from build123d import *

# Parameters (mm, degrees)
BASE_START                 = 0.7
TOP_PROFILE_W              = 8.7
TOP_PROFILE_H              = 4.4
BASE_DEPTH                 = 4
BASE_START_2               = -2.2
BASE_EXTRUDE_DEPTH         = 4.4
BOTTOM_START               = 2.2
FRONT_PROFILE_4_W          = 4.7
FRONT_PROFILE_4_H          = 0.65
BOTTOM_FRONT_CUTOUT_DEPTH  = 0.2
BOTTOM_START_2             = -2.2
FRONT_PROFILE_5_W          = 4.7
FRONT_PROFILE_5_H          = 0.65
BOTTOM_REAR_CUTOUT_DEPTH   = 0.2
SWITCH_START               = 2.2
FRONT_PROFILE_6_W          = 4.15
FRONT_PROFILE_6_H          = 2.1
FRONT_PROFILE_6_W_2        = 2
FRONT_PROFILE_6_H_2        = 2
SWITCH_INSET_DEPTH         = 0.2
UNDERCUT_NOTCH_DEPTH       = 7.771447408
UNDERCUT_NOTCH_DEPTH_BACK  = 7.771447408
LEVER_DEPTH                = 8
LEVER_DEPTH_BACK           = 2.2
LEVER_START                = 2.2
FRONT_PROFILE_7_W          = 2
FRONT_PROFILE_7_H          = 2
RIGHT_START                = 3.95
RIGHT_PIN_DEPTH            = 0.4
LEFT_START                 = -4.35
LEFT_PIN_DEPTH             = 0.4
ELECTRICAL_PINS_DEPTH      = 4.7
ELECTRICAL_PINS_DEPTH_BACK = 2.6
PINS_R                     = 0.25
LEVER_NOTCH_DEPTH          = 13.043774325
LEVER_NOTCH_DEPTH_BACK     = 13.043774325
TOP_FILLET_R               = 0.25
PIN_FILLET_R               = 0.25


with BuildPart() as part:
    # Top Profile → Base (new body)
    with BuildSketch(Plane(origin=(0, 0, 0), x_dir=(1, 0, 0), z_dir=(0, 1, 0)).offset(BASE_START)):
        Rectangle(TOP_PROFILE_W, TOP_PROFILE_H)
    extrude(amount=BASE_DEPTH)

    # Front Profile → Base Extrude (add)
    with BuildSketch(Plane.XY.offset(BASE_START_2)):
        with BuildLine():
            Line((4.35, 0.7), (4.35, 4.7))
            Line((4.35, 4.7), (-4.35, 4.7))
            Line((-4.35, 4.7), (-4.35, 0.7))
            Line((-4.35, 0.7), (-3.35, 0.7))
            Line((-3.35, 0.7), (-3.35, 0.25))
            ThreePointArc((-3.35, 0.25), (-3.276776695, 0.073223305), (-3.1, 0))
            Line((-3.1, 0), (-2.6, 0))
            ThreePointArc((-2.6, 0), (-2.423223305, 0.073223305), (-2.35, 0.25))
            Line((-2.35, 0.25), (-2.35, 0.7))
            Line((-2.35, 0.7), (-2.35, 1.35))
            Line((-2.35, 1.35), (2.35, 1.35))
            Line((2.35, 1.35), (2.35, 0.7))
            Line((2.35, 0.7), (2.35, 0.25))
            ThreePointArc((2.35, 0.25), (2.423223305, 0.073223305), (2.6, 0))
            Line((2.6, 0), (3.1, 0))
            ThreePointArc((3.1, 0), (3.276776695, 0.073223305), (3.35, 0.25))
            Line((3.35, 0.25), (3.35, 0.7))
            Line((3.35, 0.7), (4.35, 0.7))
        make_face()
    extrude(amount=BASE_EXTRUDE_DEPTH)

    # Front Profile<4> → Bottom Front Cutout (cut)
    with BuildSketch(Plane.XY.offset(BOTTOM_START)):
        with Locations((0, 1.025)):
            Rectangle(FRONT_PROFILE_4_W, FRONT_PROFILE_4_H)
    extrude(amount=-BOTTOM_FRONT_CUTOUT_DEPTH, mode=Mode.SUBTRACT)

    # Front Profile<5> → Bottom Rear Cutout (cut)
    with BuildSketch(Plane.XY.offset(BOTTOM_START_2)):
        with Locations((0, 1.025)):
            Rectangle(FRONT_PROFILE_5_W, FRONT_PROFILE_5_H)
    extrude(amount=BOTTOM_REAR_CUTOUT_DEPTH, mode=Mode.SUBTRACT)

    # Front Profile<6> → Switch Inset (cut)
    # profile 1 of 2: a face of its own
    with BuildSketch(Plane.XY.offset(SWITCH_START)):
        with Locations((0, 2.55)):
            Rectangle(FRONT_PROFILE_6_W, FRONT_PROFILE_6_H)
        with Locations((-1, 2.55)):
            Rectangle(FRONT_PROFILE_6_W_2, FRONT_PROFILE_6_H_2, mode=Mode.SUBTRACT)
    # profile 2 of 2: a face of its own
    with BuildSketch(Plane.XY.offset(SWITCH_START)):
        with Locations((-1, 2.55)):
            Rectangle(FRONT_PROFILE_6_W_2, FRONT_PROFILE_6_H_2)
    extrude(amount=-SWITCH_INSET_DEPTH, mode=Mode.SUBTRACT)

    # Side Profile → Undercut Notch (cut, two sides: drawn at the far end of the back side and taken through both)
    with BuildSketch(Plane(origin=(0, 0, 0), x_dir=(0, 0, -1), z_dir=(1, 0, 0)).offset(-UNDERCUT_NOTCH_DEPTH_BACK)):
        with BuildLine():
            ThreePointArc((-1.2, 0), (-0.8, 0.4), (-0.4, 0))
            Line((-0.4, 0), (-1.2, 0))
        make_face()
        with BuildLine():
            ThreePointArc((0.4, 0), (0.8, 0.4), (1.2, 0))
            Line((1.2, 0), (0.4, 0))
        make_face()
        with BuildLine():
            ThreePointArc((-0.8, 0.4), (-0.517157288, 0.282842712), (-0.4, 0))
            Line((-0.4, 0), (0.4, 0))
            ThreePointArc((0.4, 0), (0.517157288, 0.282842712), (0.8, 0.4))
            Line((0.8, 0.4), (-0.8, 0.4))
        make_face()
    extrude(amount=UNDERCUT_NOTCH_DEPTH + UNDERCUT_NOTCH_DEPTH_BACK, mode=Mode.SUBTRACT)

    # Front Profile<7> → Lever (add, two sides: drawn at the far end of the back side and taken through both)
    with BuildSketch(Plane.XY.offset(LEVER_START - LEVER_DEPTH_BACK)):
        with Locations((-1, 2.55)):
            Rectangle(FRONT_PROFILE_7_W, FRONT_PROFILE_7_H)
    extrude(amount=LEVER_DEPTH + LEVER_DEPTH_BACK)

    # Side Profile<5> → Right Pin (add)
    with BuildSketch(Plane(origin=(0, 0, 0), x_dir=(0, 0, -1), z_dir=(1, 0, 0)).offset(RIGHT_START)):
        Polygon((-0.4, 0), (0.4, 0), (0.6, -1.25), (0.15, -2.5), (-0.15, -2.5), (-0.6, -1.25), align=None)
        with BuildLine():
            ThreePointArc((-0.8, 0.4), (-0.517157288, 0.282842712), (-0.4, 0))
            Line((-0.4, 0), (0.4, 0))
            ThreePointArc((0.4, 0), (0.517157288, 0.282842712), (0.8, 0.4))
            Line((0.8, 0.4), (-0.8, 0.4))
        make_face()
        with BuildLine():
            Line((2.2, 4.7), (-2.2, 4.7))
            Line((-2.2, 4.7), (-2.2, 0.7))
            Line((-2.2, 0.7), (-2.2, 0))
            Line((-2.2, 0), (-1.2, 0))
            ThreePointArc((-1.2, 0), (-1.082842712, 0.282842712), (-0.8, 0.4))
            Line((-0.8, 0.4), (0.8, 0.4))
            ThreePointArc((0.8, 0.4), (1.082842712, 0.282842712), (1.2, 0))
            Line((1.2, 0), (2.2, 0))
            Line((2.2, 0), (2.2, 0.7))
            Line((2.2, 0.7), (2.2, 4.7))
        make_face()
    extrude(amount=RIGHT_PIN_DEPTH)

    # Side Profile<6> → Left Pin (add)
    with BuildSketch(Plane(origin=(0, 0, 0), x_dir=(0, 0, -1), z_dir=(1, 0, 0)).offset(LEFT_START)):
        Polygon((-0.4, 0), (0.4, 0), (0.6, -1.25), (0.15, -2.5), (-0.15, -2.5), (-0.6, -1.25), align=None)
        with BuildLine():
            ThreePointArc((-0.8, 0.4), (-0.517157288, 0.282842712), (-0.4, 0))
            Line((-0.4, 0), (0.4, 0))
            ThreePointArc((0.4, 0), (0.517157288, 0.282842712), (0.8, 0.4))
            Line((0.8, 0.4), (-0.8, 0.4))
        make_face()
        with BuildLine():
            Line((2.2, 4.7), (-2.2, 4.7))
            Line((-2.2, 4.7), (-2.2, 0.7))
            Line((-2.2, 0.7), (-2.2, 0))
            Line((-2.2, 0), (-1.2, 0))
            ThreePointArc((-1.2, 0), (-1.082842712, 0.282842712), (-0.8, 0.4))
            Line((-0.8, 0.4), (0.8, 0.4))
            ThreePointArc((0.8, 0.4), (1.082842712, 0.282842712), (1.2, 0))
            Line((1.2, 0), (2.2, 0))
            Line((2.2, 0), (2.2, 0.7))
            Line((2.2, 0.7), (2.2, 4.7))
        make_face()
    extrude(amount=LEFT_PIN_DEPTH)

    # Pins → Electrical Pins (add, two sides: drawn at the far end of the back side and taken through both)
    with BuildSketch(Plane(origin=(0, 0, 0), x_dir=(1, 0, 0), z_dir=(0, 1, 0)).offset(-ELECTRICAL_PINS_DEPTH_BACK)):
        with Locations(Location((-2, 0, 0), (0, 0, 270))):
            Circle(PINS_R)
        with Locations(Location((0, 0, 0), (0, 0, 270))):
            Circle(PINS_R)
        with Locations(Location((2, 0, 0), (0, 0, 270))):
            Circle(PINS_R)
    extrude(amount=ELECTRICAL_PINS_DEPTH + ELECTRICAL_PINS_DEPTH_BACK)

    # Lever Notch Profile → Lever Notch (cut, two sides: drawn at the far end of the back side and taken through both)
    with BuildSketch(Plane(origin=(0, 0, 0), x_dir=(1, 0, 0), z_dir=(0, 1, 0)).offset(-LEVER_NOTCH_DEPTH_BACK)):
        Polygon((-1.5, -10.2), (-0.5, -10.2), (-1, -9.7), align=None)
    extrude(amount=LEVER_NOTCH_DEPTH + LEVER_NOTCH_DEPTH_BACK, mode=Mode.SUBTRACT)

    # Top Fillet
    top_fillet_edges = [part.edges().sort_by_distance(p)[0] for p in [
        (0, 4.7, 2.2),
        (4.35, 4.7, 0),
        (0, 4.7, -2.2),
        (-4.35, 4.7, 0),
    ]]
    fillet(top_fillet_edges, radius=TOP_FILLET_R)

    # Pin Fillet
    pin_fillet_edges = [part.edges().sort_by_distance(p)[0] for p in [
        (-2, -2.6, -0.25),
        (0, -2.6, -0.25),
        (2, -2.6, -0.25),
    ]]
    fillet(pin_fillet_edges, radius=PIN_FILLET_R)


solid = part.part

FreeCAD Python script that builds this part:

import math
import FreeCAD as App
import Part
import Sketcher
from FreeCAD import Vector


def edges_at(feature, points):
    """Names of the edges that pass closest to the given points."""
    edges = feature.Shape.Edges
    near = lambda p: min(range(len(edges)), key=lambda i: edges[i].distToShape(Part.Vertex(*p))[0])
    return sorted({f"Edge{near(p) + 1}" for p in points})

doc = App.newDocument("Part")
body = doc.addObject("PartDesign::Body", "Body")

sketch1 = doc.addObject("Sketcher::SketchObject", "Sketch")
body.addObject(sketch1)
sketch1.AttachmentSupport = (doc.XZ_Plane, [""])
sketch1.MapMode = "FlatFace"
sketch1.AttachmentOffset = App.Placement(Vector(0, 0, -0.7), App.Rotation())
sketch1.addGeometry([
    Part.LineSegment(Vector(-4.3, -2.2, 0), Vector(-4.3, 2.2, 0)),
    Part.LineSegment(Vector(-4.3, 2.2, 0), Vector(4.3, 2.2, 0)),
    Part.LineSegment(Vector(4.3, 2.2, 0), Vector(4.3, -2.2, 0)),
    Part.LineSegment(Vector(4.3, -2.2, 0), Vector(-4.3, -2.2, 0)),
], False)
sketch1.addConstraint([
    Sketcher.Constraint("Coincident", 0, 2, 1, 1),
    Sketcher.Constraint("Coincident", 1, 2, 2, 1),
    Sketcher.Constraint("Coincident", 2, 2, 3, 1),
    Sketcher.Constraint("Coincident", 3, 2, 0, 1),
    Sketcher.Constraint("Vertical", 0),
    Sketcher.Constraint("Horizontal", 1),
    Sketcher.Constraint("Vertical", 2),
    Sketcher.Constraint("Horizontal", 3),
    Sketcher.Constraint("Symmetric", 0, 2, 2, 2, -1, 1),
    Sketcher.Constraint("DistanceX", 1, 1, 1, 2, 8.7),
    Sketcher.Constraint("DistanceY", 0, 1, 0, 2, 4.4),
])
pad1 = doc.addObject("PartDesign::Pad", "Pad")
body.addObject(pad1)
pad1.Profile = sketch1
pad1.Length = 4
pad1.Reversed = True

sketch2 = doc.addObject("Sketcher::SketchObject", "Sketch001")
body.addObject(sketch2)
sketch2.AttachmentSupport = (doc.XY_Plane, [""])
sketch2.MapMode = "FlatFace"
sketch2.AttachmentOffset = App.Placement(Vector(0, 0, -2.2), App.Rotation())
sketch2.addGeometry([
    Part.LineSegment(Vector(4.35, 0.7, 0), Vector(4.35, 4.7, 0)),
    Part.LineSegment(Vector(4.35, 4.7, 0), Vector(-4.35, 4.7, 0)),
    Part.LineSegment(Vector(-4.35, 4.7, 0), Vector(-4.35, 0.7, 0)),
    Part.LineSegment(Vector(-4.35, 0.7, 0), Vector(-3.35, 0.7, 0)),
    Part.LineSegment(Vector(-3.35, 0.7, 0), Vector(-3.35, 0.25, 0)),
    Part.ArcOfCircle(Part.Circle(Vector(-3.1, 0.25, 0), Vector(0, 0, 1), 0.25), math.radians(-180), math.radians(-90)),
    Part.LineSegment(Vector(-3.1, 0, 0), Vector(-2.6, 0, 0)),
    Part.ArcOfCircle(Part.Circle(Vector(-2.6, 0.25, 0), Vector(0, 0, 1), 0.25), math.radians(-90), math.radians(0)),
    Part.LineSegment(Vector(-2.35, 0.25, 0), Vector(-2.35, 1.35, 0)),
    Part.LineSegment(Vector(-2.35, 1.35, 0), Vector(2.35, 1.35, 0)),
    Part.LineSegment(Vector(2.35, 1.35, 0), Vector(2.35, 0.25, 0)),
    Part.ArcOfCircle(Part.Circle(Vector(2.6, 0.25, 0), Vector(0, 0, 1), 0.25), math.radians(-180), math.radians(-90)),
    Part.LineSegment(Vector(2.6, 0, 0), Vector(3.1, 0, 0)),
    Part.ArcOfCircle(Part.Circle(Vector(3.1, 0.25, 0), Vector(0, 0, 1), 0.25), math.radians(-90), math.radians(0)),
    Part.LineSegment(Vector(3.35, 0.25, 0), Vector(3.35, 0.7, 0)),
    Part.LineSegment(Vector(3.35, 0.7, 0), Vector(4.35, 0.7, 0)),
], False)
sketch2.addConstraint([
    Sketcher.Constraint("Coincident", 0, 2, 1, 1),
    Sketcher.Constraint("Coincident", 1, 2, 2, 1),
    Sketcher.Constraint("Coincident", 2, 2, 3, 1),
    Sketcher.Constraint("Coincident", 3, 2, 4, 1),
    Sketcher.Constraint("Tangent", 4, 2, 5, 1),
    Sketcher.Constraint("Tangent", 5, 2, 6, 1),
    Sketcher.Constraint("Tangent", 6, 2, 7, 1),
    Sketcher.Constraint("Tangent", 7, 2, 8, 1),
    Sketcher.Constraint("Coincident", 8, 2, 9, 1),
    Sketcher.Constraint("Coincident", 9, 2, 10, 1),
    Sketcher.Constraint("Tangent", 10, 2, 11, 1),
    Sketcher.Constraint("Tangent", 11, 2, 12, 1),
    Sketcher.Constraint("Tangent", 12, 2, 13, 1),
    Sketcher.Constraint("Tangent", 13, 2, 14, 1),
    Sketcher.Constraint("Coincident", 14, 2, 15, 1),
    Sketcher.Constraint("Coincident", 15, 2, 0, 1),
    Sketcher.Constraint("Vertical", 0),
    Sketcher.Constraint("Horizontal", 1),
    Sketcher.Constraint("Vertical", 2),
    Sketcher.Constraint("Horizontal", 3),
    Sketcher.Constraint("Vertical", 4),
    Sketcher.Constraint("Horizontal", 6),
    Sketcher.Constraint("Vertical", 8),
    Sketcher.Constraint("Horizontal", 9),
    Sketcher.Constraint("Vertical", 10),
    Sketcher.Constraint("Horizontal", 12),
    Sketcher.Constraint("Vertical", 14),
    Sketcher.Constraint("Horizontal", 15),
    Sketcher.Constraint("Equal", 5, 7),
    Sketcher.Constraint("Equal", 7, 11),
    Sketcher.Constraint("Equal", 11, 13),
    Sketcher.Constraint("Symmetric", 6, 2, 11, 2, -1, 1),
    Sketcher.Constraint("Symmetric", 5, 3, 13, 3, -2),
    Sketcher.Constraint("Symmetric", 2, 2, 15, 2, -2),
    Sketcher.Constraint("DistanceX", 3, 1, 3, 2, 1.0),
    Sketcher.Constraint("DistanceY", 0, 1, 0, 2, 4.0),
    Sketcher.Constraint("Radius", 5, 0.25),
    Sketcher.Constraint("DistanceX", 1, 2, 1, 1, 8.7),
    Sketcher.Constraint("DistanceX", 6, 1, 6, 2, 0.5),
    Sketcher.Constraint("DistanceY", 8, 1, 8, 2, 1.1),
    Sketcher.Constraint("DistanceY", 4, 2, 4, 1, 0.45),
])
pad2 = doc.addObject("PartDesign::Pad", "Pad001")
body.addObject(pad2)
pad2.Profile = sketch2
pad2.Length = 4.4

sketch3 = doc.addObject("Sketcher::SketchObject", "Sketch002")
body.addObject(sketch3)
sketch3.AttachmentSupport = (doc.XY_Plane, [""])
sketch3.MapMode = "FlatFace"
sketch3.AttachmentOffset = App.Placement(Vector(0, 0, 2.2), App.Rotation())
sketch3.addGeometry([
    Part.LineSegment(Vector(-2.4, 1.4, 0), Vector(-2.4, 0.7, 0)),
    Part.LineSegment(Vector(-2.4, 0.7, 0), Vector(2.4, 0.7, 0)),
    Part.LineSegment(Vector(2.4, 0.7, 0), Vector(2.4, 1.4, 0)),
    Part.LineSegment(Vector(2.4, 1.4, 0), Vector(-2.4, 1.4, 0)),
], False)
sketch3.addConstraint([
    Sketcher.Constraint("Coincident", 0, 2, 1, 1),
    Sketcher.Constraint("Coincident", 1, 2, 2, 1),
    Sketcher.Constraint("Coincident", 2, 2, 3, 1),
    Sketcher.Constraint("Coincident", 3, 2, 0, 1),
    Sketcher.Constraint("Vertical", 0),
    Sketcher.Constraint("Horizontal", 1),
    Sketcher.Constraint("Vertical", 2),
    Sketcher.Constraint("Horizontal", 3),
    Sketcher.Constraint("DistanceX", 1, 1, 1, 2, 4.7),
    Sketcher.Constraint("DistanceY", 0, 2, 0, 1, 0.65),
    Sketcher.Constraint("DistanceY", -1, 1, 0, 2, 0.7),
    Sketcher.Constraint("DistanceX", 0, 2, -1, 1, 2.35),
])
pocket1 = doc.addObject("PartDesign::Pocket", "Pocket")
body.addObject(pocket1)
pocket1.Profile = sketch3
pocket1.Length = 0.2

sketch4 = doc.addObject("Sketcher::SketchObject", "Sketch003")
body.addObject(sketch4)
sketch4.AttachmentSupport = (doc.XY_Plane, [""])
sketch4.MapMode = "FlatFace"
sketch4.AttachmentOffset = App.Placement(Vector(0, 0, -2.2), App.Rotation())
sketch4.addGeometry([
    Part.LineSegment(Vector(-2.4, 1.4, 0), Vector(-2.4, 0.7, 0)),
    Part.LineSegment(Vector(-2.4, 0.7, 0), Vector(2.4, 0.7, 0)),
    Part.LineSegment(Vector(2.4, 0.7, 0), Vector(2.4, 1.4, 0)),
    Part.LineSegment(Vector(2.4, 1.4, 0), Vector(-2.4, 1.4, 0)),
], False)
sketch4.addConstraint([
    Sketcher.Constraint("Coincident", 0, 2, 1, 1),
    Sketcher.Constraint("Coincident", 1, 2, 2, 1),
    Sketcher.Constraint("Coincident", 2, 2, 3, 1),
    Sketcher.Constraint("Coincident", 3, 2, 0, 1),
    Sketcher.Constraint("Vertical", 0),
    Sketcher.Constraint("Horizontal", 1),
    Sketcher.Constraint("Vertical", 2),
    Sketcher.Constraint("Horizontal", 3),
    Sketcher.Constraint("DistanceX", 1, 1, 1, 2, 4.7),
    Sketcher.Constraint("DistanceY", 0, 2, 0, 1, 0.65),
    Sketcher.Constraint("DistanceY", -1, 1, 0, 2, 0.7),
    Sketcher.Constraint("DistanceX", 0, 2, -1, 1, 2.35),
])
pocket2 = doc.addObject("PartDesign::Pocket", "Pocket001")
body.addObject(pocket2)
pocket2.Profile = sketch4
pocket2.Length = 0.2
pocket2.Reversed = True

sketch5 = doc.addObject("Sketcher::SketchObject", "Sketch004")
body.addObject(sketch5)
sketch5.AttachmentSupport = (doc.XY_Plane, [""])
sketch5.MapMode = "FlatFace"
sketch5.AttachmentOffset = App.Placement(Vector(0, 0, 2.2), App.Rotation())
sketch5.addGeometry([
    Part.LineSegment(Vector(-2.1, 3.6, 0), Vector(-2.1, 1.5, 0)),
    Part.LineSegment(Vector(-2.1, 1.5, 0), Vector(2.1, 1.5, 0)),
    Part.LineSegment(Vector(2.1, 1.5, 0), Vector(2.1, 3.6, 0)),
    Part.LineSegment(Vector(2.1, 3.6, 0), Vector(-2.1, 3.6, 0)),
], False)
sketch5.addConstraint([
    Sketcher.Constraint("Coincident", 0, 2, 1, 1),
    Sketcher.Constraint("Coincident", 1, 2, 2, 1),
    Sketcher.Constraint("Coincident", 2, 2, 3, 1),
    Sketcher.Constraint("Coincident", 3, 2, 0, 1),
    Sketcher.Constraint("Vertical", 0),
    Sketcher.Constraint("Horizontal", 1),
    Sketcher.Constraint("Vertical", 2),
    Sketcher.Constraint("Horizontal", 3),
    Sketcher.Constraint("DistanceY", 0, 2, 0, 1, 2.1),
    Sketcher.Constraint("DistanceX", 1, 1, 1, 2, 4.15),
    Sketcher.Constraint("DistanceY", -1, 1, 0, 2, 1.5),
    Sketcher.Constraint("DistanceX", 0, 2, -1, 1, 2.075),
])
pocket3 = doc.addObject("PartDesign::Pocket", "Pocket002")
body.addObject(pocket3)
pocket3.Profile = sketch5
pocket3.Length = 0.2

sketch6 = doc.addObject("Sketcher::SketchObject", "Sketch005")
body.addObject(sketch6)
sketch6.AttachmentSupport = (doc.YZ_Plane, [""])
sketch6.MapMode = "FlatFace"
sketch6.addGeometry([
    Part.ArcOfCircle(Part.Circle(Vector(0, 0.8, 0), Vector(0, 0, 1), 0.4), math.radians(0), math.radians(90)),
    Part.LineSegment(Vector(0, 1.2, 0), Vector(0, -1.2, 0)),
    Part.ArcOfCircle(Part.Circle(Vector(0, -0.8, 0), Vector(0, 0, 1), 0.4), math.radians(-90), math.radians(0)),
    Part.LineSegment(Vector(0.4, -0.8, 0), Vector(0.4, 0.8, 0)),
], False)
sketch6.addConstraint([
    Sketcher.Constraint("Coincident", 0, 2, 1, 1),
    Sketcher.Constraint("Coincident", 1, 2, 2, 1),
    Sketcher.Constraint("Tangent", 2, 2, 3, 1),
    Sketcher.Constraint("Tangent", 3, 2, 0, 1),
    Sketcher.Constraint("Vertical", 1),
    Sketcher.Constraint("Vertical", 3),
    Sketcher.Constraint("Equal", 0, 2),
    Sketcher.Constraint("Symmetric", 0, 3, 2, 3, -1, 1),
    Sketcher.Constraint("PointOnObject", 0, 2, -2),
    Sketcher.Constraint("Radius", 0, 0.4),
    Sketcher.Constraint("DistanceY", 1, 2, 1, 1, 2.4),
])
pocket4 = doc.addObject("PartDesign::Pocket", "Pocket003")
body.addObject(pocket4)
pocket4.Profile = sketch6
pocket4.Type = "ThroughAll"
pocket4.Midplane = True

sketch7 = doc.addObject("Sketcher::SketchObject", "Sketch006")
body.addObject(sketch7)
sketch7.AttachmentSupport = (doc.XY_Plane, [""])
sketch7.MapMode = "FlatFace"
sketch7.AttachmentOffset = App.Placement(Vector(0, 0, 2.2), App.Rotation())
sketch7.addGeometry([
    Part.LineSegment(Vector(-2, 3.5, 0), Vector(-2, 1.6, 0)),
    Part.LineSegment(Vector(-2, 1.6, 0), Vector(0, 1.6, 0)),
    Part.LineSegment(Vector(0, 1.6, 0), Vector(0, 3.5, 0)),
    Part.LineSegment(Vector(0, 3.5, 0), Vector(-2, 3.5, 0)),
], False)
sketch7.addConstraint([
    Sketcher.Constraint("Coincident", 0, 2, 1, 1),
    Sketcher.Constraint("Coincident", 1, 2, 2, 1),
    Sketcher.Constraint("Coincident", 2, 2, 3, 1),
    Sketcher.Constraint("Coincident", 3, 2, 0, 1),
    Sketcher.Constraint("Vertical", 0),
    Sketcher.Constraint("Horizontal", 1),
    Sketcher.Constraint("Vertical", 2),
    Sketcher.Constraint("Horizontal", 3),
    Sketcher.Constraint("PointOnObject", 1, 2, -2),
    Sketcher.Constraint("Equal", 3, 0),
    Sketcher.Constraint("DistanceX", 1, 1, 1, 2, 2.0),
    Sketcher.Constraint("DistanceY", -1, 1, 0, 2, 1.55),
])
pad3 = doc.addObject("PartDesign::Pad", "Pad002")
body.addObject(pad3)
pad3.Profile = sketch7
pad3.Type = "TwoLengths"
pad3.Length = 8
pad3.Length2 = 2.2

sketch8 = doc.addObject("Sketcher::SketchObject", "Sketch007")
body.addObject(sketch8)
sketch8.AttachmentSupport = (doc.YZ_Plane, [""])
sketch8.MapMode = "FlatFace"
sketch8.AttachmentOffset = App.Placement(Vector(0, 0, 3.95), App.Rotation())
sketch8.addGeometry([
    Part.LineSegment(Vector(-1.25, -0.6, 0), Vector(0, -0.4, 0)),
    Part.ArcOfCircle(Part.Circle(Vector(0, -0.8, 0), Vector(0, 0, 1), 0.4), math.radians(0), math.radians(90)),
    Part.ArcOfCircle(Part.Circle(Vector(0, -0.8, 0), Vector(0, 0, 1), 0.4), math.radians(-90), math.radians(0)),
    Part.LineSegment(Vector(0, -1.2, 0), Vector(0, -2.2, 0)),
    Part.LineSegment(Vector(0, -2.2, 0), Vector(4.7, -2.2, 0)),
    Part.LineSegment(Vector(4.7, -2.2, 0), Vector(4.7, 2.2, 0)),
    Part.LineSegment(Vector(4.7, 2.2, 0), Vector(0, 2.2, 0)),
    Part.LineSegment(Vector(0, 2.2, 0), Vector(0, 1.2, 0)),
    Part.ArcOfCircle(Part.Circle(Vector(0, 0.8, 0), Vector(0, 0, 1), 0.4), math.radians(0), math.radians(90)),
    Part.ArcOfCircle(Part.Circle(Vector(0, 0.8, 0), Vector(0, 0, 1), 0.4), math.radians(-90), math.radians(0)),
    Part.LineSegment(Vector(0, 0.4, 0), Vector(-1.25, 0.6, 0)),
    Part.LineSegment(Vector(-1.25, 0.6, 0), Vector(-2.5, 0.15, 0)),
    Part.LineSegment(Vector(-2.5, 0.15, 0), Vector(-2.5, -0.15, 0)),
    Part.LineSegment(Vector(-2.5, -0.15, 0), Vector(-1.25, -0.6, 0)),
], False)
sketch8.addConstraint([
    Sketcher.Constraint("Coincident", 0, 2, 1, 2),
    Sketcher.Constraint("Tangent", 1, 1, 2, 2),
    Sketcher.Constraint("Coincident", 2, 1, 3, 1),
    Sketcher.Constraint("Coincident", 3, 2, 4, 1),
    Sketcher.Constraint("Coincident", 4, 2, 5, 1),
    Sketcher.Constraint("Coincident", 5, 2, 6, 1),
    Sketcher.Constraint("Coincident", 6, 2, 7, 1),
    Sketcher.Constraint("Coincident", 7, 2, 8, 2),
    Sketcher.Constraint("Tangent", 8, 1, 9, 2),
    Sketcher.Constraint("Coincident", 9, 1, 10, 1),
    Sketcher.Constraint("Coincident", 10, 2, 11, 1),
    Sketcher.Constraint("Coincident", 11, 2, 12, 1),
    Sketcher.Constraint("Coincident", 12, 2, 13, 1),
    Sketcher.Constraint("Coincident", 13, 2, 0, 1),
    Sketcher.Constraint("Vertical", 3),
    Sketcher.Constraint("Horizontal", 4),
    Sketcher.Constraint("Vertical", 5),
    Sketcher.Constraint("Horizontal", 6),
    Sketcher.Constraint("Vertical", 7),
    Sketcher.Constraint("Vertical", 12),
    Sketcher.Constraint("Equal", 1, 2),
    Sketcher.Constraint("Equal", 2, 8),
    Sketcher.Constraint("Equal", 8, 9),
    Sketcher.Constraint("Symmetric", 1, 3, 8, 3, -1, 1),
    Sketcher.Constraint("Symmetric", 3, 2, 6, 2, -1, 1),
    Sketcher.Constraint("Symmetric", 1, 1, 8, 1, -1),
    Sketcher.Constraint("Symmetric", 10, 2, 13, 2, -1),
    Sketcher.Constraint("PointOnObject", 0, 2, -2),
    Sketcher.Constraint("PointOnObject", 2, 1, -2),
    Sketcher.Constraint("PointOnObject", 9, 1, -2),
    Sketcher.Constraint("Horizontal", 2, 3, 1, 1),
    Sketcher.Constraint("Equal", 11, 13),
    Sketcher.Constraint("Radius", 1, 0.4),
    Sketcher.Constraint("DistanceY", 3, 2, 3, 1, 1.0),
    Sketcher.Constraint("DistanceX", 4, 1, 4, 2, 4.7),
    Sketcher.Constraint("DistanceY", 5, 1, 5, 2, 4.4),
    Sketcher.Constraint("DistanceY", 12, 2, 12, 1, 0.3),
    Sketcher.Constraint("DistanceY", 0, 2, 10, 2, 1.0),
    Sketcher.Constraint("DistanceX", 11, 2, -1, 1, 2.5),
    Sketcher.Constraint("DistanceX", 10, 2, -1, 1, 1.25),
])
pad4 = doc.addObject("PartDesign::Pad", "Pad003")
body.addObject(pad4)
pad4.Profile = sketch8
pad4.Length = 0.4

sketch9 = doc.addObject("Sketcher::SketchObject", "Sketch008")
body.addObject(sketch9)
sketch9.AttachmentSupport = (doc.YZ_Plane, [""])
sketch9.MapMode = "FlatFace"
sketch9.AttachmentOffset = App.Placement(Vector(0, 0, -4.35), App.Rotation())
sketch9.addGeometry([
    Part.LineSegment(Vector(-1.25, -0.6, 0), Vector(0, -0.4, 0)),
    Part.ArcOfCircle(Part.Circle(Vector(0, -0.8, 0), Vector(0, 0, 1), 0.4), math.radians(0), math.radians(90)),
    Part.ArcOfCircle(Part.Circle(Vector(0, -0.8, 0), Vector(0, 0, 1), 0.4), math.radians(-90), math.radians(0)),
    Part.LineSegment(Vector(0, -1.2, 0), Vector(0, -2.2, 0)),
    Part.LineSegment(Vector(0, -2.2, 0), Vector(4.7, -2.2, 0)),
    Part.LineSegment(Vector(4.7, -2.2, 0), Vector(4.7, 2.2, 0)),
    Part.LineSegment(Vector(4.7, 2.2, 0), Vector(0, 2.2, 0)),
    Part.LineSegment(Vector(0, 2.2, 0), Vector(0, 1.2, 0)),
    Part.ArcOfCircle(Part.Circle(Vector(0, 0.8, 0), Vector(0, 0, 1), 0.4), math.radians(0), math.radians(90)),
    Part.ArcOfCircle(Part.Circle(Vector(0, 0.8, 0), Vector(0, 0, 1), 0.4), math.radians(-90), math.radians(0)),
    Part.LineSegment(Vector(0, 0.4, 0), Vector(-1.25, 0.6, 0)),
    Part.LineSegment(Vector(-1.25, 0.6, 0), Vector(-2.5, 0.15, 0)),
    Part.LineSegment(Vector(-2.5, 0.15, 0), Vector(-2.5, -0.15, 0)),
    Part.LineSegment(Vector(-2.5, -0.15, 0), Vector(-1.25, -0.6, 0)),
], False)
sketch9.addConstraint([
    Sketcher.Constraint("Coincident", 0, 2, 1, 2),
    Sketcher.Constraint("Tangent", 1, 1, 2, 2),
    Sketcher.Constraint("Coincident", 2, 1, 3, 1),
    Sketcher.Constraint("Coincident", 3, 2, 4, 1),
    Sketcher.Constraint("Coincident", 4, 2, 5, 1),
    Sketcher.Constraint("Coincident", 5, 2, 6, 1),
    Sketcher.Constraint("Coincident", 6, 2, 7, 1),
    Sketcher.Constraint("Coincident", 7, 2, 8, 2),
    Sketcher.Constraint("Tangent", 8, 1, 9, 2),
    Sketcher.Constraint("Coincident", 9, 1, 10, 1),
    Sketcher.Constraint("Coincident", 10, 2, 11, 1),
    Sketcher.Constraint("Coincident", 11, 2, 12, 1),
    Sketcher.Constraint("Coincident", 12, 2, 13, 1),
    Sketcher.Constraint("Coincident", 13, 2, 0, 1),
    Sketcher.Constraint("Vertical", 3),
    Sketcher.Constraint("Horizontal", 4),
    Sketcher.Constraint("Vertical", 5),
    Sketcher.Constraint("Horizontal", 6),
    Sketcher.Constraint("Vertical", 7),
    Sketcher.Constraint("Vertical", 12),
    Sketcher.Constraint("Equal", 1, 2),
    Sketcher.Constraint("Equal", 2, 8),
    Sketcher.Constraint("Equal", 8, 9),
    Sketcher.Constraint("Symmetric", 1, 3, 8, 3, -1, 1),
    Sketcher.Constraint("Symmetric", 3, 2, 6, 2, -1, 1),
    Sketcher.Constraint("Symmetric", 1, 1, 8, 1, -1),
    Sketcher.Constraint("Symmetric", 10, 2, 13, 2, -1),
    Sketcher.Constraint("PointOnObject", 0, 2, -2),
    Sketcher.Constraint("PointOnObject", 2, 1, -2),
    Sketcher.Constraint("PointOnObject", 9, 1, -2),
    Sketcher.Constraint("Horizontal", 2, 3, 1, 1),
    Sketcher.Constraint("Equal", 11, 13),
    Sketcher.Constraint("Radius", 1, 0.4),
    Sketcher.Constraint("DistanceY", 3, 2, 3, 1, 1.0),
    Sketcher.Constraint("DistanceX", 4, 1, 4, 2, 4.7),
    Sketcher.Constraint("DistanceY", 5, 1, 5, 2, 4.4),
    Sketcher.Constraint("DistanceY", 12, 2, 12, 1, 0.3),
    Sketcher.Constraint("DistanceY", 0, 2, 10, 2, 1.0),
    Sketcher.Constraint("DistanceX", 11, 2, -1, 1, 2.5),
    Sketcher.Constraint("DistanceX", 10, 2, -1, 1, 1.25),
])
pad5 = doc.addObject("PartDesign::Pad", "Pad004")
body.addObject(pad5)
pad5.Profile = sketch9
pad5.Length = 0.4

sketch10 = doc.addObject("Sketcher::SketchObject", "Sketch009")
body.addObject(sketch10)
sketch10.AttachmentSupport = (doc.XZ_Plane, [""])
sketch10.MapMode = "FlatFace"
sketch10.addGeometry([
    Part.Circle(Vector(-2, 0, 0), Vector(0, 0, 1), 0.25),
    Part.Circle(Vector(0, 0, 0), Vector(0, 0, 1), 0.25),
    Part.Circle(Vector(2, 0, 0), Vector(0, 0, 1), 0.25),
], False)
sketch10.addConstraint([
    Sketcher.Constraint("Coincident", 1, 3, -1, 1),
    Sketcher.Constraint("Equal", 0, 1),
    Sketcher.Constraint("Equal", 1, 2),
    Sketcher.Constraint("Symmetric", 0, 3, 2, 3, -1, 1),
    Sketcher.Constraint("PointOnObject", 0, 3, -1),
    Sketcher.Constraint("Diameter", 0, 0.5),
    Sketcher.Constraint("DistanceX", 0, 3, -1, 1, 2.0),
])
pad6 = doc.addObject("PartDesign::Pad", "Pad005")
body.addObject(pad6)
pad6.Profile = sketch10
pad6.Type = "TwoLengths"
pad6.Length = 4.7
pad6.Length2 = 2.6
pad6.Reversed = True

sketch11 = doc.addObject("Sketcher::SketchObject", "Sketch010")
body.addObject(sketch11)
sketch11.AttachmentSupport = (doc.XZ_Plane, [""])
sketch11.MapMode = "FlatFace"
sketch11.addGeometry([
    Part.LineSegment(Vector(-1.5, 10.2, 0), Vector(-0.5, 10.2, 0)),
    Part.LineSegment(Vector(-0.5, 10.2, 0), Vector(-1, 9.7, 0)),
    Part.LineSegment(Vector(-1, 9.7, 0), Vector(-1.5, 10.2, 0)),
], False)
sketch11.addConstraint([
    Sketcher.Constraint("Coincident", 0, 2, 1, 1),
    Sketcher.Constraint("Coincident", 1, 2, 2, 1),
    Sketcher.Constraint("Coincident", 2, 2, 0, 1),
    Sketcher.Constraint("Horizontal", 0),
    Sketcher.Constraint("Perpendicular", 1, 2),
    Sketcher.Constraint("Equal", 1, 2),
    Sketcher.Constraint("DistanceX", 0, 1, 0, 2, 1.0),
    Sketcher.Constraint("DistanceX", 1, 2, -1, 1, 1.0),
    Sketcher.Constraint("DistanceY", -1, 1, 0, 2, 10.2),
])
pocket5 = doc.addObject("PartDesign::Pocket", "Pocket004")
body.addObject(pocket5)
pocket5.Profile = sketch11
pocket5.Type = "ThroughAll"
pocket5.Midplane = True
doc.recompute()

fillet = doc.addObject("PartDesign::Fillet", "Fillet")
body.addObject(fillet)
fillet.Base = (pocket5, edges_at(pocket5, [
    (0, 4.7, 2.2),
    (4.35, 4.7, 0),
    (0, 4.7, -2.2),
    (-4.35, 4.7, 0),
]))
fillet.Radius = 0.25
doc.recompute()

fillet2 = doc.addObject("PartDesign::Fillet", "Fillet001")
body.addObject(fillet2)
fillet2.Base = (fillet, edges_at(fillet, [(-2, -2.6, -0.25), (0, -2.6, -0.25), (2, -2.6, -0.25)]))
fillet2.Radius = 0.25

doc.recompute()
